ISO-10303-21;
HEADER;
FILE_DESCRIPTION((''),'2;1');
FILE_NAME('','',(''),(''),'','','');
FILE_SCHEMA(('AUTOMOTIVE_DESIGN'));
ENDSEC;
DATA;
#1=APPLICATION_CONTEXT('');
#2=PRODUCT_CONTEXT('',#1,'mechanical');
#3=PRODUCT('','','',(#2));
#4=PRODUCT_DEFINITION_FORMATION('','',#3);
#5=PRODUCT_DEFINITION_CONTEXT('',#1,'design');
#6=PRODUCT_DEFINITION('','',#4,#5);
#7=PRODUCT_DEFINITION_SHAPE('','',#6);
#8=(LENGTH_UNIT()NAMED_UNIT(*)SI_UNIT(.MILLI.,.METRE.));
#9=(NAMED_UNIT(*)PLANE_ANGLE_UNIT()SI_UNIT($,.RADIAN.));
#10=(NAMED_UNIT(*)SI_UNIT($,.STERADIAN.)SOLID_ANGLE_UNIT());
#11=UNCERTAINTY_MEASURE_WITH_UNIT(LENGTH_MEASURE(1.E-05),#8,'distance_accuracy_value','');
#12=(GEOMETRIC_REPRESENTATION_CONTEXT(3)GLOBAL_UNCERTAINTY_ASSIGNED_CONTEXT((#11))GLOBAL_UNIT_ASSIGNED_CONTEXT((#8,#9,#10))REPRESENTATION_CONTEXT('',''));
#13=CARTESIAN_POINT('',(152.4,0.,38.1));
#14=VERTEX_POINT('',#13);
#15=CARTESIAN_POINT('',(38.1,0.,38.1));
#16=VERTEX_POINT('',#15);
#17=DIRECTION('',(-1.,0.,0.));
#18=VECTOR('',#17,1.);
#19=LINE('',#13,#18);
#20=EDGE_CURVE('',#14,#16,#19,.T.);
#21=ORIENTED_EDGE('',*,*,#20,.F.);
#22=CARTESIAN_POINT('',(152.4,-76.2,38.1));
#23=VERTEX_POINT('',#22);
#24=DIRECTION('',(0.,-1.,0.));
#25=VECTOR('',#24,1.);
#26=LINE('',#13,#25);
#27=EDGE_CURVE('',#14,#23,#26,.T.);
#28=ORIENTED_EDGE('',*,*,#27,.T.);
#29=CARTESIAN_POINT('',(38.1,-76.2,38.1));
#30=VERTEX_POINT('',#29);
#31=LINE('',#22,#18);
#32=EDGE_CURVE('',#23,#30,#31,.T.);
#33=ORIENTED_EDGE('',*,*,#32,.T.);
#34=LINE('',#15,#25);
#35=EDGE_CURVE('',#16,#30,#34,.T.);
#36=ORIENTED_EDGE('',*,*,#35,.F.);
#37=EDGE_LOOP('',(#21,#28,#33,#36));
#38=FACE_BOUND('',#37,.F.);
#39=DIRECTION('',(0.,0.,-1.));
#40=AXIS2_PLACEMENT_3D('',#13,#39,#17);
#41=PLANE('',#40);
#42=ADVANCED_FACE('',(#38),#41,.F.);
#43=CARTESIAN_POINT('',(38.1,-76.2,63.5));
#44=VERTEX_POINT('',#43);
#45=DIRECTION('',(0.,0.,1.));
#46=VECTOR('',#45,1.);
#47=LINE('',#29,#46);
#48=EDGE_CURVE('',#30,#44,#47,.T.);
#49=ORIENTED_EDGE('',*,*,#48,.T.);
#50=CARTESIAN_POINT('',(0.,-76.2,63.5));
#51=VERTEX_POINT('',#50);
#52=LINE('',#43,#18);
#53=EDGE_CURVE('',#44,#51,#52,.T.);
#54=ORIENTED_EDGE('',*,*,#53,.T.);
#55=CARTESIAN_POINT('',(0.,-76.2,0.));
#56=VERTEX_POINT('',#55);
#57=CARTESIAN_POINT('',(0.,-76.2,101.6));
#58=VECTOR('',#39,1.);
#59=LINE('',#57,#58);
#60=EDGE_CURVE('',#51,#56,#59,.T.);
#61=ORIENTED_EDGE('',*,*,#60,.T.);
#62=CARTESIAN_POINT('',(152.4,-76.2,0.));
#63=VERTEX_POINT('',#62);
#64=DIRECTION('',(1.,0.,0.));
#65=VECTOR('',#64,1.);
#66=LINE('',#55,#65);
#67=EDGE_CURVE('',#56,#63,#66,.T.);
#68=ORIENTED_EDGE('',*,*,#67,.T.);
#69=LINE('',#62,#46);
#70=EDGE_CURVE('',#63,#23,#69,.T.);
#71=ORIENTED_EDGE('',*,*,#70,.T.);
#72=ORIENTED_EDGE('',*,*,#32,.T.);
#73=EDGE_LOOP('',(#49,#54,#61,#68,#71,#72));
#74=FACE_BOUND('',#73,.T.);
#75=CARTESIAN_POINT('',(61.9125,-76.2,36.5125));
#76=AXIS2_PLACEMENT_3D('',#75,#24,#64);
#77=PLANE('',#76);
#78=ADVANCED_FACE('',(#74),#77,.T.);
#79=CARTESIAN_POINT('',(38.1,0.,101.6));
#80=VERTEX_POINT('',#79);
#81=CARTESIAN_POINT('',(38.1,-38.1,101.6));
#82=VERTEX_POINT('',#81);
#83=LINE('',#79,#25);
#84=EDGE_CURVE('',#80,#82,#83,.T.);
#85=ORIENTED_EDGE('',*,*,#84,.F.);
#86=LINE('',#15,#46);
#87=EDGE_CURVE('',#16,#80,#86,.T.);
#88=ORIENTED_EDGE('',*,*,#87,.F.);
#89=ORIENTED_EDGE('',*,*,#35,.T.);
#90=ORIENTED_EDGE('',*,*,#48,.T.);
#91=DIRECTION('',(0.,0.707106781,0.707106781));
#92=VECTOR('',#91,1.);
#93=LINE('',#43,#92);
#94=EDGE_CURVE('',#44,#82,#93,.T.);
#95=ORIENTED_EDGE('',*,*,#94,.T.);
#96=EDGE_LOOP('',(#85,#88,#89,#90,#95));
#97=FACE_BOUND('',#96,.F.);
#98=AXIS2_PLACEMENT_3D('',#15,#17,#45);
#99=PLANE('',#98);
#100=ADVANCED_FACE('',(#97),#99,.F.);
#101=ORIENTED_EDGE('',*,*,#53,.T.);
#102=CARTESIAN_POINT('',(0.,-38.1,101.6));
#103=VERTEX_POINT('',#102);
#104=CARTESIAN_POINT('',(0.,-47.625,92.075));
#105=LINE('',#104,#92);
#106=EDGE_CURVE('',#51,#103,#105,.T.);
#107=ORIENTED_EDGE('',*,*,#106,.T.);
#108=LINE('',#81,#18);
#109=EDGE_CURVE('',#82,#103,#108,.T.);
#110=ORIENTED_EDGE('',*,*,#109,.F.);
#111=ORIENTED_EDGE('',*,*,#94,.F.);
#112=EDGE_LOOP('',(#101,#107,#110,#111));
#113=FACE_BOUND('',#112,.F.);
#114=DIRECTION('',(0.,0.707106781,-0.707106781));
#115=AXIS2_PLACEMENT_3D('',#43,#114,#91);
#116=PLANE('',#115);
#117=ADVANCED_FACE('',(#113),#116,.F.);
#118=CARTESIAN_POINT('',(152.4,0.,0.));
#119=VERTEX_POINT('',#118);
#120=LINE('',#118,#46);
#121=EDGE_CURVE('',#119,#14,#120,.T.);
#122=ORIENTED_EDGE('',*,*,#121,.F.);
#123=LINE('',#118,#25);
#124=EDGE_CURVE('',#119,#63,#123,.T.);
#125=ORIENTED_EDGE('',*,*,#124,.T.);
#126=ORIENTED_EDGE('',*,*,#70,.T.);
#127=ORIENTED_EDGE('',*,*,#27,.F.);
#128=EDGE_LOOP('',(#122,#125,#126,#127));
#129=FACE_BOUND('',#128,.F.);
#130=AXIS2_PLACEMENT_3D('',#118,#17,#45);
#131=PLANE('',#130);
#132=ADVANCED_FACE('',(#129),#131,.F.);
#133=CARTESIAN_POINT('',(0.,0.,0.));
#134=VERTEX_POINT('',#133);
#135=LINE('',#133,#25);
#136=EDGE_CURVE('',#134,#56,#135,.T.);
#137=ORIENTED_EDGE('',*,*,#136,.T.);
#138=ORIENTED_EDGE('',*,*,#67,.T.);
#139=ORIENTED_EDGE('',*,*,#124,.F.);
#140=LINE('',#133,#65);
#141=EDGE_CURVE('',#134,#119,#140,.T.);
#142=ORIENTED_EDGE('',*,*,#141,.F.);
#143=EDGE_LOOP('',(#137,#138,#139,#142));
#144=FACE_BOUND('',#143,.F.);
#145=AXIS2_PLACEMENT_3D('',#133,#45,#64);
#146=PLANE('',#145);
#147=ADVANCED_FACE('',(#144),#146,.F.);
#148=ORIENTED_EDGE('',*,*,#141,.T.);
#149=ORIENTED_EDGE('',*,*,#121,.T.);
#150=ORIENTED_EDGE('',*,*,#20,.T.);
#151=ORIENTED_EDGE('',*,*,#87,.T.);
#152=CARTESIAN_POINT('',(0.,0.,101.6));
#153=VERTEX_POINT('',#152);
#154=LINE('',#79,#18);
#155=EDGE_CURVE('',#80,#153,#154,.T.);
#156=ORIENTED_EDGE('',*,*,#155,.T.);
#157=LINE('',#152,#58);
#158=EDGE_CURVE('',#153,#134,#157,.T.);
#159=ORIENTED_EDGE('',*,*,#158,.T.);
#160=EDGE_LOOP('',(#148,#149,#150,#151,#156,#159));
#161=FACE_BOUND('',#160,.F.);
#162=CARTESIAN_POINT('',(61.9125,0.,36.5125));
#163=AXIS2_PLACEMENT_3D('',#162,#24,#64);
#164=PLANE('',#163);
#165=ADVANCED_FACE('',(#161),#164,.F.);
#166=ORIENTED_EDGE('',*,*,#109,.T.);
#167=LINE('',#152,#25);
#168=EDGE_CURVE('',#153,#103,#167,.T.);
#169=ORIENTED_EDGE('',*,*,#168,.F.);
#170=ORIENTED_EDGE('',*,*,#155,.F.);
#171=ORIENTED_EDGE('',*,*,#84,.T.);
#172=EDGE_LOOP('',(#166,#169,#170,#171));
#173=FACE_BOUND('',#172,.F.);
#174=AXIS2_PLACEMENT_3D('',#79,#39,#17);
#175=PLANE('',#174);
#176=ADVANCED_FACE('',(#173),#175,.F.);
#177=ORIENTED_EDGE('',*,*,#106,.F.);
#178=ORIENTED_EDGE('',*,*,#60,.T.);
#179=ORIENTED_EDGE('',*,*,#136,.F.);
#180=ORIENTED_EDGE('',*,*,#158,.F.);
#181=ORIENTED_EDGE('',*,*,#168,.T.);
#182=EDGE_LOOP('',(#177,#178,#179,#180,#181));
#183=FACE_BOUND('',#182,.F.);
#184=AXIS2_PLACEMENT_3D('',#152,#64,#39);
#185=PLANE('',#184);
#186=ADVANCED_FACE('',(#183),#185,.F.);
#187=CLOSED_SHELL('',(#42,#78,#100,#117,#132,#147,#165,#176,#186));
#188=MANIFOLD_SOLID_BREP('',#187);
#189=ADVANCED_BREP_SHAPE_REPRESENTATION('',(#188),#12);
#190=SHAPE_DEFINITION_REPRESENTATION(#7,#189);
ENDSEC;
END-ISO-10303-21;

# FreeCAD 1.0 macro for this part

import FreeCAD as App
import Part
import Sketcher

V = App.Vector
Q = App.Units.Quantity

doc = App.newDocument("Part")
params = doc.addObject("Spreadsheet::Sheet", "Params")
for row, (alias, value) in enumerate([
    ("sketch1_width", "6 in"),
    ("sketch1_height", "4 in"),
    ("sketch1_width2", "4.5 in"),
    ("pad1_length", "3 in"),
    ("sketch2_width", "1.5 in"),
], start=1):
    params.set(f"A{row}", alias)
    params.set(f"B{row}", "=" + value)
    params.setAlias(f"B{row}", alias)

body = doc.addObject("PartDesign::Body", "Body")

# Sketch on XZ plane
sketch1 = body.newObject("Sketcher::SketchObject", "Sketch")
sketch1.AttachmentSupport = (doc.getObject("XZ_Plane"), [""])
sketch1.MapMode = "FlatFace"
sketch1.addGeometry(Part.LineSegment(V(0, 101.6, 0), V(0, 0, 0)), False)
sketch1.addGeometry(Part.LineSegment(V(0, 0, 0), V(152.4, 0, 0)), False)
sketch1.addGeometry(Part.LineSegment(V(152.4, 0, 0), V(152.4, 38.1, 0)), False)
sketch1.addGeometry(Part.LineSegment(V(152.4, 38.1, 0), V(38.1, 38.1, 0)), False)
sketch1.addGeometry(Part.LineSegment(V(38.1, 38.1, 0), V(38.1, 101.6, 0)), False)
sketch1.addGeometry(Part.LineSegment(V(38.1, 101.6, 0), V(0, 101.6, 0)), False)
sketch1.addConstraint(Sketcher.Constraint("Coincident", 0, 2, 1, 1))
sketch1.addConstraint(Sketcher.Constraint("Coincident", 1, 2, 2, 1))
sketch1.addConstraint(Sketcher.Constraint("Coincident", 2, 2, 3, 1))
sketch1.addConstraint(Sketcher.Constraint("Coincident", 3, 2, 4, 1))
sketch1.addConstraint(Sketcher.Constraint("Coincident", 4, 2, 5, 1))
sketch1.addConstraint(Sketcher.Constraint("Coincident", 5, 2, 0, 1))
sketch1.addConstraint(Sketcher.Constraint("Vertical", 0))
sketch1.addConstraint(Sketcher.Constraint("Horizontal", 1))
sketch1.addConstraint(Sketcher.Constraint("Vertical", 2))
sketch1.addConstraint(Sketcher.Constraint("Horizontal", 3))
sketch1.addConstraint(Sketcher.Constraint("Vertical", 4))
sketch1.addConstraint(Sketcher.Constraint("Horizontal", 5))
sketch1.addConstraint(Sketcher.Constraint("Coincident", 0, 2, -1, 1))
sketch1.addConstraint(Sketcher.Constraint("Equal", 5, 2))
sketch1.addConstraint(Sketcher.Constraint("DistanceX", 1, 1, 1, 2, Q("6 in")))
sketch1.addConstraint(Sketcher.Constraint("DistanceY", 0, 2, 0, 1, Q("4 in")))
sketch1.addConstraint(Sketcher.Constraint("DistanceX", 3, 2, 3, 1, Q("4.5 in")))
sketch1.setExpression("Constraints[14]", "Params.sketch1_width")
sketch1.setExpression("Constraints[15]", "Params.sketch1_height")
sketch1.setExpression("Constraints[16]", "Params.sketch1_width2")
pad1 = body.newObject("PartDesign::Pad", "Pad")
pad1.Profile = sketch1
pad1.setExpression("Length", "Params.pad1_length")

# Sketch on YZ plane
sketch2 = body.newObject("Sketcher::SketchObject", "Sketch001")
sketch2.AttachmentSupport = (doc.getObject("YZ_Plane"), [""])
sketch2.MapMode = "FlatFace"
sketch2.AttachmentOffset = App.Placement(V(0, 0, 1.5 * 25.4), App.Rotation())
sketch2.addGeometry(Part.LineSegment(V(-76.2, 63.5, 0), V(-38.1, 101.6, 0)), False)
sketch2.addGeometry(Part.LineSegment(V(-38.1, 101.6, 0), V(-76.2, 101.6, 0)), False)
sketch2.addGeometry(Part.LineSegment(V(-76.2, 101.6, 0), V(-76.2, 63.5, 0)), False)
sketch2.addConstraint(Sketcher.Constraint("Coincident", 0, 2, 1, 1))
sketch2.addConstraint(Sketcher.Constraint("Coincident", 1, 2, 2, 1))
sketch2.addConstraint(Sketcher.Constraint("Coincident", 2, 2, 0, 1))
sketch2.addConstraint(Sketcher.Constraint("Horizontal", 1))
sketch2.addConstraint(Sketcher.Constraint("Vertical", 2))
sketch2.addConstraint(Sketcher.Constraint("Equal", 1, 2))
sketch2.addConstraint(Sketcher.Constraint("DistanceX", 1, 2, 1, 1, Q("1.5 in")))
sketch2.addConstraint(Sketcher.Constraint("DistanceY", -1, 1, 0, 2, Q("4 in")))
sketch2.addConstraint(Sketcher.Constraint("DistanceX", 1, 2, -1, 1, Q("3 in")))
sketch2.setExpression("Constraints[6]", "Params.sketch2_width")
pocket1 = body.newObject("PartDesign::Pocket", "Pocket")
pocket1.Profile = sketch2
pocket1.Type = "ThroughAll"

doc.recompute()
